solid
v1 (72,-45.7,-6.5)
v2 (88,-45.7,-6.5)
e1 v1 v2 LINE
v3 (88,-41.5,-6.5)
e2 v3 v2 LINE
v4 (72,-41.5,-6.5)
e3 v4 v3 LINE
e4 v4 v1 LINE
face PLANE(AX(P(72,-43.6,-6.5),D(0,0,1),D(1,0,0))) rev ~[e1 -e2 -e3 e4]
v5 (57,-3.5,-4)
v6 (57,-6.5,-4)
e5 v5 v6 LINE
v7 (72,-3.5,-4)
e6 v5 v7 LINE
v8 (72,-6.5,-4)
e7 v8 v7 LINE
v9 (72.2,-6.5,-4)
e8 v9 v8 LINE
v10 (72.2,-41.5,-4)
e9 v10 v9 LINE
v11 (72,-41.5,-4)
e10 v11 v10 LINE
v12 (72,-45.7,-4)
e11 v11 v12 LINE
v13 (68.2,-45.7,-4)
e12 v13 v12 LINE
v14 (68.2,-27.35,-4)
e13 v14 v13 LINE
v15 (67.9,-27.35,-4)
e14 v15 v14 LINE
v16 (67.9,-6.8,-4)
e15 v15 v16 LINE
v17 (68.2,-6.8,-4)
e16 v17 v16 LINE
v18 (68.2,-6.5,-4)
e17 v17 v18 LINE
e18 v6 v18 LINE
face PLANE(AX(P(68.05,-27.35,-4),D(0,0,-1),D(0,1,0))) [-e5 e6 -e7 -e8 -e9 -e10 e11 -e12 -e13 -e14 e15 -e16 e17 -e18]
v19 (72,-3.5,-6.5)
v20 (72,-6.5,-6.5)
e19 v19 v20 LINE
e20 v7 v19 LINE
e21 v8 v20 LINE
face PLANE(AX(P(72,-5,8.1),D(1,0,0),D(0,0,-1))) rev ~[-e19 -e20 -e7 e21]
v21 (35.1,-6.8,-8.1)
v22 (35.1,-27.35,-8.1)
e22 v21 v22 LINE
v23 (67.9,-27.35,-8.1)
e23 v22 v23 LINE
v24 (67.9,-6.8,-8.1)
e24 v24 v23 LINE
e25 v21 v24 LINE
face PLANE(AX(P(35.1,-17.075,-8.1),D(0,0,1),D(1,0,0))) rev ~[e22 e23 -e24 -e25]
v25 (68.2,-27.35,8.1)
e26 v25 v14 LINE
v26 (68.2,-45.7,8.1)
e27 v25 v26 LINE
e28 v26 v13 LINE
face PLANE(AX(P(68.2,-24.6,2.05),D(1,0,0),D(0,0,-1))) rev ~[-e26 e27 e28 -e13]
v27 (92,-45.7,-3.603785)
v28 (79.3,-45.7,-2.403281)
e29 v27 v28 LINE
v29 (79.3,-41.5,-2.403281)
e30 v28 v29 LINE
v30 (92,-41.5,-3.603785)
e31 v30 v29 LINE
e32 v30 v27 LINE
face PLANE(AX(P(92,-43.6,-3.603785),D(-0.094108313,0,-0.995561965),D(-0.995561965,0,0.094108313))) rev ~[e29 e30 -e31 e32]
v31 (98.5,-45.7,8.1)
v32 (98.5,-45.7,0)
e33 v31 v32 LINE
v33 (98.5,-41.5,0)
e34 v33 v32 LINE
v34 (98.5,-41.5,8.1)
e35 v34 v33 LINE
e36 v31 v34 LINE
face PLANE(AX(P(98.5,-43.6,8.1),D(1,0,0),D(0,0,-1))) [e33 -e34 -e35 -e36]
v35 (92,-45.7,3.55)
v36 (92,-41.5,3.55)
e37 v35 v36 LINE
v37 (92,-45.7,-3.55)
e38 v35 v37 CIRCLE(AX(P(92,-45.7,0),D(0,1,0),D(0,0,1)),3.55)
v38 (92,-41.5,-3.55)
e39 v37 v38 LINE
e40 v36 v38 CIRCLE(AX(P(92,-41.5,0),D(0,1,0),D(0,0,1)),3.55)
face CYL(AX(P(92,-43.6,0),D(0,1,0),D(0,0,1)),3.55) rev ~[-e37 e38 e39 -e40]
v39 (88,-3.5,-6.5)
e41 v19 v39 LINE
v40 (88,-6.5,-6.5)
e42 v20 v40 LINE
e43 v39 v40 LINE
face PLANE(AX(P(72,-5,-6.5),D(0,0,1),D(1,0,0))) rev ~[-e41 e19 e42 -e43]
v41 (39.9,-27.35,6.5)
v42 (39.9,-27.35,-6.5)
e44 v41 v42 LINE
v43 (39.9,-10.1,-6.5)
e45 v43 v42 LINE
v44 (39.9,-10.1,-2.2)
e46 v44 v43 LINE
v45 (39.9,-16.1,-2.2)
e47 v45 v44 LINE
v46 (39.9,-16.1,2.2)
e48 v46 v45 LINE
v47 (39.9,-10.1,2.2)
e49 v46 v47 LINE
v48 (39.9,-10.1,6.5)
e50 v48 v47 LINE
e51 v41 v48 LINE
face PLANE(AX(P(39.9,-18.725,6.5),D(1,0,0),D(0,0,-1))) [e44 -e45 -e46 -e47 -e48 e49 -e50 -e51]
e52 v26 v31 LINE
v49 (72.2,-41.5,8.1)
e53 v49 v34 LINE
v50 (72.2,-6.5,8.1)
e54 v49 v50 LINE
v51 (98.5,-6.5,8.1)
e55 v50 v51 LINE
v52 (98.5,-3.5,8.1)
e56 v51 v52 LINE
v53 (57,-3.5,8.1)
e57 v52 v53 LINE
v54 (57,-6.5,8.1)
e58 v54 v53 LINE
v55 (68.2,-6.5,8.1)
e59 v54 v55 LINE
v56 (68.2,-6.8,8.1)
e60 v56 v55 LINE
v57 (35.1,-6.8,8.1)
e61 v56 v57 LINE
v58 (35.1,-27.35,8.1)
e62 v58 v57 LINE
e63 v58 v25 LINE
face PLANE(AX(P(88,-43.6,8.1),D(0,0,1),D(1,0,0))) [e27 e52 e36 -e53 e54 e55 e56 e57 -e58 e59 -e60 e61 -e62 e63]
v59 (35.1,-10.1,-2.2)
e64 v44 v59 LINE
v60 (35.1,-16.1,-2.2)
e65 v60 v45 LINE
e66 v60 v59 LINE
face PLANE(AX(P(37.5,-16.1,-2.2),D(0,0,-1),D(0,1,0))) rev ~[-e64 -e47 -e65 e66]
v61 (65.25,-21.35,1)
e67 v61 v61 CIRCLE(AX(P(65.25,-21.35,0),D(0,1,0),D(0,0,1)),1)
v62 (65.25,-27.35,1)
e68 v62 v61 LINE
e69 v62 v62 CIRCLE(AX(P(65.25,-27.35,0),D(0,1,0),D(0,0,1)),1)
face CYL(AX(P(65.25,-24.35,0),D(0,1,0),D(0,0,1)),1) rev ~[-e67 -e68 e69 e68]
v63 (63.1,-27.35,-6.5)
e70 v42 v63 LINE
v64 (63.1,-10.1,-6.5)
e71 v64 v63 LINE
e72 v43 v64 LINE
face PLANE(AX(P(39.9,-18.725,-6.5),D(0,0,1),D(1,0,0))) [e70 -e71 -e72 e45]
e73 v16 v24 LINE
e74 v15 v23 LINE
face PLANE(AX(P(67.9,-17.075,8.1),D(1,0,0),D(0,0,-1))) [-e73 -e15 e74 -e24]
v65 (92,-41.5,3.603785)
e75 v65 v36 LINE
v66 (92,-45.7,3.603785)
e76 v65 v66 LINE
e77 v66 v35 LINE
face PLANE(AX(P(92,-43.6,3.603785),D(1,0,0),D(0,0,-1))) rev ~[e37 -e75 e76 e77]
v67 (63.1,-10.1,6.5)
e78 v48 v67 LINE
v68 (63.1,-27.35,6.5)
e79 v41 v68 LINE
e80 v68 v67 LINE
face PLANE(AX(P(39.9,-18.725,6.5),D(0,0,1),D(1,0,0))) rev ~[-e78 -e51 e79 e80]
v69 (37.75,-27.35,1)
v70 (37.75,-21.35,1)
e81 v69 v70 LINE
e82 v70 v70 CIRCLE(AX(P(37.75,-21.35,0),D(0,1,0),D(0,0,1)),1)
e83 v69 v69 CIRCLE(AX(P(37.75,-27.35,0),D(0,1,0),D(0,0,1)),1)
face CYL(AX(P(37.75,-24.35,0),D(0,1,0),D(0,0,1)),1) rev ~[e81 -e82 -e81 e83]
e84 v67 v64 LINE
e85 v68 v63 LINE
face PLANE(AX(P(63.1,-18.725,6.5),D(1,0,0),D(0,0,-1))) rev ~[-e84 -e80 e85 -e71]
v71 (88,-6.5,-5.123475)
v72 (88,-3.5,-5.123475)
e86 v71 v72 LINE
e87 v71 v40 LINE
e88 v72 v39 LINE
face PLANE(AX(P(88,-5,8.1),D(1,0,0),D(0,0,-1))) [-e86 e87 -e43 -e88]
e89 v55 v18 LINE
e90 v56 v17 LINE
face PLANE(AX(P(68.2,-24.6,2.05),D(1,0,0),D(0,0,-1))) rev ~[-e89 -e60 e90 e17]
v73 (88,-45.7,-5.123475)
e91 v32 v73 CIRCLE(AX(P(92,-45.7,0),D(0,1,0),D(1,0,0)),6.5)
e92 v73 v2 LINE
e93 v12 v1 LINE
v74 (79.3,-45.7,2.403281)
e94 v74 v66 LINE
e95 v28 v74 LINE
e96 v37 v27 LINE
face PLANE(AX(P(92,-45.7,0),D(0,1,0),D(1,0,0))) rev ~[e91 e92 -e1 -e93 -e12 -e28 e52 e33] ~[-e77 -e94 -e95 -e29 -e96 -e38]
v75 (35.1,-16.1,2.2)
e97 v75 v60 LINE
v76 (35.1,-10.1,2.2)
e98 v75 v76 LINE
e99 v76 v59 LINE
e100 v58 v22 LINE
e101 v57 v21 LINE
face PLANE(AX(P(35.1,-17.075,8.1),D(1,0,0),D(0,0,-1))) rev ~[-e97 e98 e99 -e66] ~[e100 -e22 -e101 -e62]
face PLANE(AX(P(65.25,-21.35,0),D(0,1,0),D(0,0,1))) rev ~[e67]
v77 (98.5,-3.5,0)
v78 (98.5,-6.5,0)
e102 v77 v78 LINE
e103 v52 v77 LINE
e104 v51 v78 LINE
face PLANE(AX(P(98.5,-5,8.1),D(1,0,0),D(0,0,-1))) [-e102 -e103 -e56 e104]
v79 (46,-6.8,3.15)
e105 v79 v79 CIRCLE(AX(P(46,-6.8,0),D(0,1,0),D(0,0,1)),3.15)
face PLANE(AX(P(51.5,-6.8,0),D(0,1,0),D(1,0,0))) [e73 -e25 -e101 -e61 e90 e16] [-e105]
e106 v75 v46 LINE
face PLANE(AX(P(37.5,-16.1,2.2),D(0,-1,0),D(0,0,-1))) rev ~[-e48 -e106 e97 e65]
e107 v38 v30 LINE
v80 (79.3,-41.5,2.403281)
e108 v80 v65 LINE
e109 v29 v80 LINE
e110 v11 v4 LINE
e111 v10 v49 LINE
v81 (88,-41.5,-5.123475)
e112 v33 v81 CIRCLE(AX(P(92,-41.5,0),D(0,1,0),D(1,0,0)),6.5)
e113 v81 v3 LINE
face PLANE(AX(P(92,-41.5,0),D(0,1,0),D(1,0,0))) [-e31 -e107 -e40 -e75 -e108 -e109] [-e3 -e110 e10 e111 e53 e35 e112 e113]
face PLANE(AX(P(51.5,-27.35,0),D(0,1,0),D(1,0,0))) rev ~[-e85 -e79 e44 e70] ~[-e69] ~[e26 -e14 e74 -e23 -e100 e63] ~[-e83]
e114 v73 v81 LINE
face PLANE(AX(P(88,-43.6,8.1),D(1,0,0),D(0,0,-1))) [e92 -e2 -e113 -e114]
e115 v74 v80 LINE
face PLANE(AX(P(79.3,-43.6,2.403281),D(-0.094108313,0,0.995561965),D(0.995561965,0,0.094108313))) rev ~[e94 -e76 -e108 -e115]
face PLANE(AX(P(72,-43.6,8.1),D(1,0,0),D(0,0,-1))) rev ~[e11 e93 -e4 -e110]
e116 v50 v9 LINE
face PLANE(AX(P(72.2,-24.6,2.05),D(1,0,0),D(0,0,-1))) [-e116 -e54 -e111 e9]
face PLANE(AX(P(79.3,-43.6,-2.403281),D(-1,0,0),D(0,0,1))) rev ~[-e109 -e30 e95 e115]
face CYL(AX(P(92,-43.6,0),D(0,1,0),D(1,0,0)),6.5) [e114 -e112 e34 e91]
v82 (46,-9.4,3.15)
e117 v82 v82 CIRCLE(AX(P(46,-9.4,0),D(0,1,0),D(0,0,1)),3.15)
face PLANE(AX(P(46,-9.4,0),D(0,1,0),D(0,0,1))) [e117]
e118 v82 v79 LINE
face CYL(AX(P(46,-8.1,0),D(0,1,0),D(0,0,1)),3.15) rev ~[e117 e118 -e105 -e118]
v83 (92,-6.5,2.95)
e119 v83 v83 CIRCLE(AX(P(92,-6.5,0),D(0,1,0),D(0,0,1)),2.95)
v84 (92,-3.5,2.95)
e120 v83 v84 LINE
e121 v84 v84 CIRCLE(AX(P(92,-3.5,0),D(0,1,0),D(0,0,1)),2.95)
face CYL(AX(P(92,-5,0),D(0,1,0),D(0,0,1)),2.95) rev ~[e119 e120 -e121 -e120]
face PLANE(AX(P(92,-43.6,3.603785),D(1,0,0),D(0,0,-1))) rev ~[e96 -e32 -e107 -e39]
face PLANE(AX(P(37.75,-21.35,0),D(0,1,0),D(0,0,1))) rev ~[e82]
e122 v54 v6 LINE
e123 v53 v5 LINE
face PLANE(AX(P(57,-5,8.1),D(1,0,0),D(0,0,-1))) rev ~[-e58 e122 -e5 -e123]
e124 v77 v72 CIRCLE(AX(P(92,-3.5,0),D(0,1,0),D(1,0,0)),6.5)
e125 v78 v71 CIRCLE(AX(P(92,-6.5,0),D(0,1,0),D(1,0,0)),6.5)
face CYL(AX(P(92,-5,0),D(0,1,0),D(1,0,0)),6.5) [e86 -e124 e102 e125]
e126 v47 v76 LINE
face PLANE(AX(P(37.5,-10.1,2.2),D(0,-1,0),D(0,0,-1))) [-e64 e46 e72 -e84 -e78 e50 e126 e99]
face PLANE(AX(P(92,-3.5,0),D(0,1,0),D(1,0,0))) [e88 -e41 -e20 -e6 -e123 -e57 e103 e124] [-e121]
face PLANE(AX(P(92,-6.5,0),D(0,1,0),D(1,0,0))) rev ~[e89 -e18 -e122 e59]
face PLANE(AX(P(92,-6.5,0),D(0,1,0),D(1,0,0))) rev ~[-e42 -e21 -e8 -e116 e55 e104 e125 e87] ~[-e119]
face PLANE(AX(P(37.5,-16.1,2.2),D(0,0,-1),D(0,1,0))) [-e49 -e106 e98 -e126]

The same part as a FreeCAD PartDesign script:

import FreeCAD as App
import Part
import Sketcher
from FreeCAD import Vector
Q = App.Units.Quantity


def add_polygon(sketch, points):
    """Adds a closed chain of lines whose ends are joined by coincident constraints."""
    first, n = sketch.GeometryCount, len(points)
    for a, b in zip(points, points[1:] + points[:1]):
        sketch.addGeometry(Part.LineSegment(App.Vector(*a, 0), App.Vector(*b, 0)), False)
    for i in range(n):
        sketch.addConstraint(Sketcher.Constraint("Coincident", first + i, 2, first + (i + 1) % n, 1))

doc = App.newDocument("Part")
params = doc.addObject("Spreadsheet::Sheet", "Params")
for row, (alias, value) in enumerate([
    ("sketch1_width", "32.8 mm"),
    ("sketch1_height", "16.2 mm"),
    ("pad1_length", "20.55 mm"),
    ("sketch2_width", "31 mm"),
    ("sketch2_height", "12.1 mm"),
    ("pad2_length", "3 mm"),
    ("sketch3_width", "16 mm"),
    ("sketch3_height", "14.6 mm"),
    ("pad3_length", "3 mm"),
    ("sketch4_width", "10.5 mm"),
    ("sketch4_height", "8.1 mm"),
    ("pad4_length", "3 mm"),
    ("sketch5_diameter", "13 mm"),
    ("pad5_length", "3 mm"),
    ("sketch6_diameter", "5.9 mm"),
    ("pocket1_length", "3 mm"),
    ("sketch7_width", "42.2 mm"),
    ("sketch7_height", "12.1 mm"),
    ("pad6_length", "4 mm"),
    ("sketch8_height", "12.1 mm"),
    ("sketch8_width", "20.55 mm"),
    ("pad7_length", "2.3 mm"),
    ("sketch9_width", "19.8 mm"),
    ("sketch9_height", "12.1 mm"),
    ("pad8_length", "4.2 mm"),
    ("sketch10_width", "16 mm"),
    ("sketch10_height", "14.6 mm"),
    ("pad9_length", "4.2 mm"),
    ("sketch11_width", "10.5 mm"),
    ("sketch11_height", "8.1 mm"),
    ("pad10_length", "4.2 mm"),
    ("sketch12_diameter", "13 mm"),
    ("pad11_length", "4.2 mm"),
    ("sketch13_diameter", "7.1 mm"),
    ("pocket2_length", "4.2 mm"),
    ("pocket3_length", "4.2 mm"),
    ("sketch15_height", "13 mm"),
    ("sketch15_width", "23.2 mm"),
    ("pocket4_length", "17.25 mm"),
    ("sketch16_diameter", "2 mm"),
    ("pocket5_length", "6 mm"),
    ("sketch17_diameter", "2 mm"),
    ("pocket6_length", "6 mm"),
    ("sketch18_diameter", "6.3 mm"),
    ("pocket7_length", "2.6 mm"),
    ("sketch19_width", "6 mm"),
    ("sketch19_height", "4.4 mm"),
    ("pocket8_length", "4.8 mm"),
], start=1):
    params.set(f"A{row}", alias)
    params.set(f"B{row}", "=" + value)
    params.setAlias(f"B{row}", alias)

body = doc.addObject("PartDesign::Body", "Body")

sketch1 = body.newObject("Sketcher::SketchObject", "Sketch")
sketch1.AttachmentSupport = (doc.getObject("XZ_Plane"), [""])
sketch1.MapMode = "FlatFace"
sketch1.AttachmentOffset = App.Placement(Vector(0, 0, 17.075), App.Rotation())
add_polygon(sketch1, [(35, -8), (35, 8), (68, 8), (68, -8)])
sketch1.addConstraint([
    Sketcher.Constraint("Vertical", 0),
    Sketcher.Constraint("Horizontal", 1),
    Sketcher.Constraint("Vertical", 2),
    Sketcher.Constraint("Horizontal", 3),
    Sketcher.Constraint("DistanceX", 1, 1, 1, 2, Q("32.8 mm")),
    Sketcher.Constraint("DistanceY", 0, 1, 0, 2, Q("16.2 mm")),
    Sketcher.Constraint("DistanceX", -1, 1, 0, 2, Q("35.1 mm")),
    Sketcher.Constraint("DistanceY", -1, 1, 0, 2, Q("8.1 mm")),
])
sketch1.setExpression("Constraints[8]", "Params.sketch1_width")
sketch1.setExpression("Constraints[9]", "Params.sketch1_height")
pad1 = body.newObject("PartDesign::Pad", "Pad")
pad1.Profile = sketch1
pad1.setExpression("Length", "Params.pad1_length")
pad1.Midplane = True
body2 = doc.addObject("PartDesign::Body", "Body001")

sketch2 = body2.newObject("Sketcher::SketchObject", "Sketch001")
sketch2.AttachmentSupport = (doc.getObject("XZ_Plane001"), [""])
sketch2.MapMode = "FlatFace"
sketch2.AttachmentOffset = App.Placement(Vector(0, 0, 5), App.Rotation())
add_polygon(sketch2, [(57, -4), (57, 8), (88, 8), (88, -4)])
sketch2.addConstraint([
    Sketcher.Constraint("Vertical", 0),
    Sketcher.Constraint("Horizontal", 1),
    Sketcher.Constraint("Vertical", 2),
    Sketcher.Constraint("Horizontal", 3),
    Sketcher.Constraint("DistanceX", 1, 1, 1, 2, Q("31 mm")),
    Sketcher.Constraint("DistanceY", 0, 1, 0, 2, Q("12.1 mm")),
    Sketcher.Constraint("DistanceX", -1, 1, 0, 2, Q("57 mm")),
    Sketcher.Constraint("DistanceY", 2, 2, -1, 1, Q("4 mm")),
])
sketch2.setExpression("Constraints[8]", "Params.sketch2_width")
sketch2.setExpression("Constraints[9]", "Params.sketch2_height")
pad2 = body2.newObject("PartDesign::Pad", "Pad001")
pad2.Profile = sketch2
pad2.setExpression("Length", "Params.pad2_length")
pad2.Midplane = True

sketch3 = body2.newObject("Sketcher::SketchObject", "Sketch002")
sketch3.AttachmentSupport = (doc.getObject("XZ_Plane001"), [""])
sketch3.MapMode = "FlatFace"
sketch3.AttachmentOffset = App.Placement(Vector(0, 0, 5), App.Rotation())
add_polygon(sketch3, [(72, -6), (72, 8), (88, 8), (88, -6)])
sketch3.addConstraint([
    Sketcher.Constraint("Vertical", 0),
    Sketcher.Constraint("Horizontal", 1),
    Sketcher.Constraint("Vertical", 2),
    Sketcher.Constraint("Horizontal", 3),
    Sketcher.Constraint("DistanceX", 1, 1, 1, 2, Q("16 mm")),
    Sketcher.Constraint("DistanceY", 0, 1, 0, 2, Q("14.6 mm")),
    Sketcher.Constraint("DistanceX", -1, 1, 0, 2, Q("72 mm")),
    Sketcher.Constraint("DistanceY", -1, 1, 0, 2, Q("8.1 mm")),
])
sketch3.setExpression("Constraints[8]", "Params.sketch3_width")
sketch3.setExpression("Constraints[9]", "Params.sketch3_height")
pad3 = body2.newObject("PartDesign::Pad", "Pad002")
pad3.Profile = sketch3
pad3.setExpression("Length", "Params.pad3_length")
pad3.Midplane = True

sketch4 = body2.newObject("Sketcher::SketchObject", "Sketch003")
sketch4.AttachmentSupport = (doc.getObject("XZ_Plane001"), [""])
sketch4.MapMode = "FlatFace"
sketch4.AttachmentOffset = App.Placement(Vector(0, 0, 5), App.Rotation())
add_polygon(sketch4, [(88, 0), (88, 8), (98, 8), (98, 0)])
sketch4.addConstraint([
    Sketcher.Constraint("Vertical", 0),
    Sketcher.Constraint("Horizontal", 1),
    Sketcher.Constraint("Vertical", 2),
    Sketcher.Constraint("Horizontal", 3),
    Sketcher.Constraint("PointOnObject", 2, 2, -1),
    Sketcher.Constraint("DistanceX", 1, 1, 1, 2, Q("10.5 mm")),
    Sketcher.Constraint("DistanceY", 0, 1, 0, 2, Q("8.1 mm")),
    Sketcher.Constraint("DistanceX", -1, 1, 0, 2, Q("88 mm")),
])
sketch4.setExpression("Constraints[9]", "Params.sketch4_width")
sketch4.setExpression("Constraints[10]", "Params.sketch4_height")
pad4 = body2.newObject("PartDesign::Pad", "Pad003")
pad4.Profile = sketch4
pad4.setExpression("Length", "Params.pad4_length")
pad4.Midplane = True

sketch5 = body2.newObject("Sketcher::SketchObject", "Sketch004")
sketch5.AttachmentSupport = (doc.getObject("XZ_Plane001"), [""])
sketch5.MapMode = "FlatFace"
sketch5.AttachmentOffset = App.Placement(Vector(0, 0, 5), App.Rotation())
sketch5.addGeometry(Part.Circle(Vector(92, 0, 0), Vector(0, 0, 1), 6), False)
sketch5.addConstraint([
    Sketcher.Constraint("PointOnObject", 0, 3, -1),
    Sketcher.Constraint("Diameter", 0, Q("13 mm")),
    Sketcher.Constraint("DistanceX", -1, 1, 0, 3, Q("92 mm")),
])
sketch5.setExpression("Constraints[1]", "Params.sketch5_diameter")
pad5 = body2.newObject("PartDesign::Pad", "Pad004")
pad5.Profile = sketch5
pad5.setExpression("Length", "Params.pad5_length")
pad5.Midplane = True

sketch6 = body2.newObject("Sketcher::SketchObject", "Sketch005")
sketch6.AttachmentSupport = (doc.getObject("XZ_Plane001"), [""])
sketch6.MapMode = "FlatFace"
sketch6.AttachmentOffset = App.Placement(Vector(0, 0, 5), App.Rotation())
sketch6.addGeometry(Part.Circle(Vector(92, 0, 0), Vector(0, 0, 1), 3), False)
sketch6.addConstraint([
    Sketcher.Constraint("PointOnObject", 0, 3, -1),
    Sketcher.Constraint("Diameter", 0, Q("5.9 mm")),
    Sketcher.Constraint("DistanceX", -1, 1, 0, 3, Q("92 mm")),
])
sketch6.setExpression("Constraints[1]", "Params.sketch6_diameter")
pocket1 = body2.newObject("PartDesign::Pocket", "Pocket")
pocket1.Profile = sketch6
pocket1.setExpression("Length", "Params.pocket1_length")
pocket1.Midplane = True

sketch7 = body2.newObject("Sketcher::SketchObject", "Sketch006")
sketch7.AttachmentSupport = (doc.getObject("YZ_Plane001"), [""])
sketch7.MapMode = "FlatFace"
sketch7.AttachmentOffset = App.Placement(Vector(0, 0, 70.2), App.Rotation())
add_polygon(sketch7, [(-4, 8), (-46, 8), (-46, -4), (-4, -4)])
sketch7.addConstraint([
    Sketcher.Constraint("Horizontal", 0),
    Sketcher.Constraint("Vertical", 1),
    Sketcher.Constraint("Horizontal", 2),
    Sketcher.Constraint("Vertical", 3),
    Sketcher.Constraint("DistanceX", 0, 2, 0, 1, Q("42.2 mm")),
    Sketcher.Constraint("DistanceY", 1, 2, 1, 1, Q("12.1 mm")),
    Sketcher.Constraint("DistanceY", 1, 2, -1, 1, Q("4 mm")),
    Sketcher.Constraint("DistanceX", 0, 2, -1, 1, Q("45.7 mm")),
])
sketch7.setExpression("Constraints[8]", "Params.sketch7_width")
sketch7.setExpression("Constraints[9]", "Params.sketch7_height")
pad6 = body2.newObject("PartDesign::Pad", "Pad005")
pad6.Profile = sketch7
pad6.setExpression("Length", "Params.pad6_length")
pad6.Midplane = True
body.AllowCompound = True
doc.recompute()

boolean = body.newObject("PartDesign::Boolean", "Boolean")
boolean.Type = "Fuse"
boolean.addObjects([body2])

sketch8 = body.newObject("Sketcher::SketchObject", "Sketch007")
sketch8.AttachmentSupport = (doc.getObject("YZ_Plane"), [""])
sketch8.MapMode = "FlatFace"
sketch8.AttachmentOffset = App.Placement(Vector(0, 0, 68.05), App.Rotation())
add_polygon(sketch8, [(-7, 8), (-27, 8), (-27, -4), (-7, -4)])
sketch8.addConstraint([
    Sketcher.Constraint("Horizontal", 0),
    Sketcher.Constraint("Vertical", 1),
    Sketcher.Constraint("Horizontal", 2),
    Sketcher.Constraint("Vertical", 3),
    Sketcher.Constraint("DistanceY", 1, 2, 1, 1, Q("12.1 mm")),
    Sketcher.Constraint("DistanceY", 1, 2, -1, 1, Q("4 mm")),
    Sketcher.Constraint("DistanceX", 0, 2, 0, 1, Q("20.55 mm")),
    Sketcher.Constraint("DistanceX", 2, 2, -1, 1, Q("6.8 mm")),
])
sketch8.setExpression("Constraints[8]", "Params.sketch8_height")
sketch8.setExpression("Constraints[10]", "Params.sketch8_width")
pad7 = body.newObject("PartDesign::Pad", "Pad006")
pad7.Profile = sketch8
pad7.setExpression("Length", "Params.pad7_length")
pad7.Midplane = True

sketch9 = body.newObject("Sketcher::SketchObject", "Sketch008")
sketch9.AttachmentSupport = (doc.getObject("XZ_Plane"), [""])
sketch9.MapMode = "FlatFace"
sketch9.AttachmentOffset = App.Placement(Vector(0, 0, 43.6), App.Rotation())
add_polygon(sketch9, [(68, -4), (68, 8), (88, 8), (88, -4)])
sketch9.addConstraint([
    Sketcher.Constraint("Vertical", 0),
    Sketcher.Constraint("Horizontal", 1),
    Sketcher.Constraint("Vertical", 2),
    Sketcher.Constraint("Horizontal", 3),
    Sketcher.Constraint("DistanceX", 1, 1, 1, 2, Q("19.8 mm")),
    Sketcher.Constraint("DistanceY", 0, 1, 0, 2, Q("12.1 mm")),
    Sketcher.Constraint("DistanceX", -1, 1, 1, 2, Q("88 mm")),
    Sketcher.Constraint("DistanceY", 2, 2, -1, 1, Q("4 mm")),
])
sketch9.setExpression("Constraints[8]", "Params.sketch9_width")
sketch9.setExpression("Constraints[9]", "Params.sketch9_height")
pad8 = body.newObject("PartDesign::Pad", "Pad007")
pad8.Profile = sketch9
pad8.setExpression("Length", "Params.pad8_length")
pad8.Midplane = True

sketch10 = body.newObject("Sketcher::SketchObject", "Sketch009")
sketch10.AttachmentSupport = (doc.getObject("XZ_Plane"), [""])
sketch10.MapMode = "FlatFace"
sketch10.AttachmentOffset = App.Placement(Vector(0, 0, 43.6), App.Rotation())
add_polygon(sketch10, [(72, -6), (72, 8), (88, 8), (88, -6)])
sketch10.addConstraint([
    Sketcher.Constraint("Vertical", 0),
    Sketcher.Constraint("Horizontal", 1),
    Sketcher.Constraint("Vertical", 2),
    Sketcher.Constraint("Horizontal", 3),
    Sketcher.Constraint("DistanceX", 1, 1, 1, 2, Q("16 mm")),
    Sketcher.Constraint("DistanceY", 0, 1, 0, 2, Q("14.6 mm")),
    Sketcher.Constraint("DistanceX", -1, 1, 0, 2, Q("72 mm")),
    Sketcher.Constraint("DistanceY", -1, 1, 0, 2, Q("8.1 mm")),
])
sketch10.setExpression("Constraints[8]", "Params.sketch10_width")
sketch10.setExpression("Constraints[9]", "Params.sketch10_height")
pad9 = body.newObject("PartDesign::Pad", "Pad008")
pad9.Profile = sketch10
pad9.setExpression("Length", "Params.pad9_length")
pad9.Midplane = True

sketch11 = body.newObject("Sketcher::SketchObject", "Sketch010")
sketch11.AttachmentSupport = (doc.getObject("XZ_Plane"), [""])
sketch11.MapMode = "FlatFace"
sketch11.AttachmentOffset = App.Placement(Vector(0, 0, 43.6), App.Rotation())
add_polygon(sketch11, [(88, 0), (88, 8), (98, 8), (98, 0)])
sketch11.addConstraint([
    Sketcher.Constraint("Vertical", 0),
    Sketcher.Constraint("Horizontal", 1),
    Sketcher.Constraint("Vertical", 2),
    Sketcher.Constraint("Horizontal", 3),
    Sketcher.Constraint("PointOnObject", 2, 2, -1),
    Sketcher.Constraint("DistanceX", 1, 1, 1, 2, Q("10.5 mm")),
    Sketcher.Constraint("DistanceY", 0, 1, 0, 2, Q("8.1 mm")),
    Sketcher.Constraint("DistanceX", -1, 1, 0, 2, Q("88 mm")),
])
sketch11.setExpression("Constraints[9]", "Params.sketch11_width")
sketch11.setExpression("Constraints[10]", "Params.sketch11_height")
pad10 = body.newObject("PartDesign::Pad", "Pad009")
pad10.Profile = sketch11
pad10.setExpression("Length", "Params.pad10_length")
pad10.Midplane = True

sketch12 = body.newObject("Sketcher::SketchObject", "Sketch011")
sketch12.AttachmentSupport = (doc.getObject("XZ_Plane"), [""])
sketch12.MapMode = "FlatFace"
sketch12.AttachmentOffset = App.Placement(Vector(0, 0, 43.6), App.Rotation())
sketch12.addGeometry(Part.Circle(Vector(92, 0, 0), Vector(0, 0, 1), 6), False)
sketch12.addConstraint([
    Sketcher.Constraint("PointOnObject", 0, 3, -1),
    Sketcher.Constraint("Diameter", 0, Q("13 mm")),
    Sketcher.Constraint("DistanceX", -1, 1, 0, 3, Q("92 mm")),
])
sketch12.setExpression("Constraints[1]", "Params.sketch12_diameter")
pad11 = body.newObject("PartDesign::Pad", "Pad010")
pad11.Profile = sketch12
pad11.setExpression("Length", "Params.pad11_length")
pad11.Midplane = True

sketch13 = body.newObject("Sketcher::SketchObject", "Sketch012")
sketch13.AttachmentSupport = (doc.getObject("XZ_Plane"), [""])
sketch13.MapMode = "FlatFace"
sketch13.AttachmentOffset = App.Placement(Vector(0, 0, 43.6), App.Rotation())
sketch13.addGeometry(Part.Circle(Vector(92, 0, 0), Vector(0, 0, 1), 3.5), False)
sketch13.addConstraint([
    Sketcher.Constraint("PointOnObject", 0, 3, -1),
    Sketcher.Constraint("Diameter", 0, Q("7.1 mm")),
    Sketcher.Constraint("DistanceX", -1, 1, 0, 3, Q("92 mm")),
])
sketch13.setExpression("Constraints[1]", "Params.sketch13_diameter")
pocket2 = body.newObject("PartDesign::Pocket", "Pocket001")
pocket2.Profile = sketch13
pocket2.setExpression("Length", "Params.pocket2_length")
pocket2.Midplane = True

sketch14 = body.newObject("Sketcher::SketchObject", "Sketch013")
sketch14.AttachmentSupport = (doc.getObject("XZ_Plane"), [""])
sketch14.MapMode = "FlatFace"
sketch14.AttachmentOffset = App.Placement(Vector(0, 0, 43.6), App.Rotation())
add_polygon(sketch14, [(92, -3.6), (79.3, -2.4), (79.3, 2.4), (92, 3.6)])
sketch14.addConstraint([
    Sketcher.Constraint("Vertical", 1),
    Sketcher.Constraint("Vertical", 3),
    Sketcher.Constraint("Equal", 0, 2),
    Sketcher.Constraint("DistanceX", -1, 1, 2, 2, Q("92 mm")),
    Sketcher.Constraint("Angle", 0, Q("174.6 deg")),
    Sketcher.Constraint("DistanceX", -1, 1, 0, 2, Q("79.3 mm")),
    Sketcher.Constraint("DistanceY", 3, 2, 3, 1, Q("7.20757 mm")),
    Sketcher.Constraint("DistanceY", 0, 2, -1, 1, Q("2.403281 mm")),
])
pocket3 = body.newObject("PartDesign::Pocket", "Pocket002")
pocket3.Profile = sketch14
pocket3.setExpression("Length", "Params.pocket3_length")
pocket3.Midplane = True

sketch15 = body.newObject("Sketcher::SketchObject", "Sketch014")
sketch15.AttachmentSupport = (doc.getObject("XZ_Plane"), [""])
sketch15.MapMode = "FlatFace"
sketch15.AttachmentOffset = App.Placement(Vector(0, 0, 18.725), App.Rotation())
add_polygon(sketch15, [(40, -6), (40, 6), (63, 6), (63, -6)])
sketch15.addConstraint([
    Sketcher.Constraint("Vertical", 0),
    Sketcher.Constraint("Horizontal", 1),
    Sketcher.Constraint("Vertical", 2),
    Sketcher.Constraint("Horizontal", 3),
    Sketcher.Constraint("DistanceY", 0, 1, 0, 2, Q("13 mm")),
    Sketcher.Constraint("DistanceX", 1, 1, 1, 2, Q("23.2 mm")),
    Sketcher.Constraint("DistanceX", -1, 1, 0, 2, Q("39.9 mm")),
    Sketcher.Constraint("DistanceY", -1, 1, 0, 2, Q("6.5 mm")),
])
sketch15.setExpression("Constraints[8]", "Params.sketch15_height")
sketch15.setExpression("Constraints[9]", "Params.sketch15_width")
pocket4 = body.newObject("PartDesign::Pocket", "Pocket003")
pocket4.Profile = sketch15
pocket4.setExpression("Length", "Params.pocket4_length")
pocket4.Midplane = True

sketch16 = body.newObject("Sketcher::SketchObject", "Sketch015")
sketch16.AttachmentSupport = (doc.getObject("XZ_Plane"), [""])
sketch16.MapMode = "FlatFace"
sketch16.AttachmentOffset = App.Placement(Vector(0, 0, 24.35), App.Rotation())
sketch16.addGeometry(Part.Circle(Vector(65.2, 0, 0), Vector(0, 0, 1), 1), False)
sketch16.addConstraint([
    Sketcher.Constraint("PointOnObject", 0, 3, -1),
    Sketcher.Constraint("Diameter", 0, Q("2 mm")),
    Sketcher.Constraint("DistanceX", -1, 1, 0, 3, Q("65.25 mm")),
])
sketch16.setExpression("Constraints[1]", "Params.sketch16_diameter")
pocket5 = body.newObject("PartDesign::Pocket", "Pocket004")
pocket5.Profile = sketch16
pocket5.setExpression("Length", "Params.pocket5_length")
pocket5.Midplane = True

sketch17 = body.newObject("Sketcher::SketchObject", "Sketch016")
sketch17.AttachmentSupport = (doc.getObject("XZ_Plane"), [""])
sketch17.MapMode = "FlatFace"
sketch17.AttachmentOffset = App.Placement(Vector(0, 0, 24.35), App.Rotation())
sketch17.addGeometry(Part.Circle(Vector(37.8, 0, 0), Vector(0, 0, 1), 1), False)
sketch17.addConstraint([
    Sketcher.Constraint("PointOnObject", 0, 3, -1),
    Sketcher.Constraint("Diameter", 0, Q("2 mm")),
    Sketcher.Constraint("DistanceX", -1, 1, 0, 3, Q("37.75 mm")),
])
sketch17.setExpression("Constraints[1]", "Params.sketch17_diameter")
pocket6 = body.newObject("PartDesign::Pocket", "Pocket005")
pocket6.Profile = sketch17
pocket6.setExpression("Length", "Params.pocket6_length")
pocket6.Midplane = True

sketch18 = body.newObject("Sketcher::SketchObject", "Sketch017")
sketch18.AttachmentSupport = (doc.getObject("XZ_Plane"), [""])
sketch18.MapMode = "FlatFace"
sketch18.AttachmentOffset = App.Placement(Vector(0, 0, 8.1), App.Rotation())
sketch18.addGeometry(Part.Circle(Vector(46, 0, 0), Vector(0, 0, 1), 3.1), False)
sketch18.addConstraint([
    Sketcher.Constraint("PointOnObject", 0, 3, -1),
    Sketcher.Constraint("Diameter", 0, Q("6.3 mm")),
    Sketcher.Constraint("DistanceX", -1, 1, 0, 3, Q("46 mm")),
])
sketch18.setExpression("Constraints[1]", "Params.sketch18_diameter")
pocket7 = body.newObject("PartDesign::Pocket", "Pocket006")
pocket7.Profile = sketch18
pocket7.setExpression("Length", "Params.pocket7_length")
pocket7.Midplane = True

sketch19 = body.newObject("Sketcher::SketchObject", "Sketch018")
sketch19.AttachmentSupport = (doc.getObject("YZ_Plane"), [""])
sketch19.MapMode = "FlatFace"
sketch19.AttachmentOffset = App.Placement(Vector(0, 0, 37.5), App.Rotation())
add_polygon(sketch19, [(-10.1, 2.2), (-16.1, 2.2), (-16.1, -2.2), (-10.1, -2.2)])
sketch19.addConstraint([
    Sketcher.Constraint("Horizontal", 0),
    Sketcher.Constraint("Vertical", 1),
    Sketcher.Constraint("Horizontal", 2),
    Sketcher.Constraint("Vertical", 3),
    Sketcher.Constraint("DistanceX", 0, 2, 0, 1, Q("6 mm")),
    Sketcher.Constraint("DistanceY", 1, 2, 1, 1, Q("4.4 mm")),
    Sketcher.Constraint("DistanceX", 0, 2, -1, 1, Q("16.1 mm")),
    Sketcher.Constraint("DistanceY", -1, 1, 0, 2, Q("2.2 mm")),
])
sketch19.setExpression("Constraints[8]", "Params.sketch19_width")
sketch19.setExpression("Constraints[9]", "Params.sketch19_height")
pocket8 = body.newObject("PartDesign::Pocket", "Pocket007")
pocket8.Profile = sketch19
pocket8.setExpression("Length", "Params.pocket8_length")
pocket8.Midplane = True

doc.recompute()
